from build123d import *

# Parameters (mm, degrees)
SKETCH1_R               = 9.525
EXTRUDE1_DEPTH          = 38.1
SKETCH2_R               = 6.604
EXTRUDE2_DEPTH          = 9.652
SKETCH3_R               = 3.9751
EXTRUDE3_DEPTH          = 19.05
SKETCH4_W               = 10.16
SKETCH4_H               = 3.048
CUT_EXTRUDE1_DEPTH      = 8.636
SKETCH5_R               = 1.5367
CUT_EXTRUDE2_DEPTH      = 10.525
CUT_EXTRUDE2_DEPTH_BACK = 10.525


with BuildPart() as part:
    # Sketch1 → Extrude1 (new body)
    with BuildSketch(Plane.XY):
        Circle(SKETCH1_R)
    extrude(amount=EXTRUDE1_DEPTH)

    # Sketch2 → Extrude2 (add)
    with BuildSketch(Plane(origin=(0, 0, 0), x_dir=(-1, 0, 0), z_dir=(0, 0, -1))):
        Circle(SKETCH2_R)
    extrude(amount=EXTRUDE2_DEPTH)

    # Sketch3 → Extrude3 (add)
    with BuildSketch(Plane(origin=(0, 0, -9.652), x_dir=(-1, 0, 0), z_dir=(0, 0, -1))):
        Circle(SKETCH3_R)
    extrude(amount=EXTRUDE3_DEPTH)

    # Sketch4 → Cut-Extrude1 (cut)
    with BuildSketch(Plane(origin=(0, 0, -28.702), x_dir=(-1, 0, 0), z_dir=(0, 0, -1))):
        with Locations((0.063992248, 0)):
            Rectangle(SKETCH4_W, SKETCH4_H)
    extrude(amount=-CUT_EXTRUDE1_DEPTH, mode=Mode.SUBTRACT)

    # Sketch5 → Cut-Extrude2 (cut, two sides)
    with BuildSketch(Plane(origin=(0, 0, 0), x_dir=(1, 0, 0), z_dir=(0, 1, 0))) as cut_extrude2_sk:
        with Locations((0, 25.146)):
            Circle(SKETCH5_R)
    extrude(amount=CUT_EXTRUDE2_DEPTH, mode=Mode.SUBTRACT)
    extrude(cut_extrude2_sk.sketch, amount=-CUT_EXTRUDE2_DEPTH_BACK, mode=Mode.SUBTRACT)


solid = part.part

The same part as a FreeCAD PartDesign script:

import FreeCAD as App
import Part
import Sketcher
from FreeCAD import Vector
Q = App.Units.Quantity

doc = App.newDocument("Part")
body = doc.addObject("PartDesign::Body", "Body")

# Sketch on XY plane
sketch1 = body.newObject("Sketcher::SketchObject", "Sketch")
sketch1.AttachmentSupport = (doc.getObject("XY_Plane"), [""])
sketch1.MapMode = "FlatFace"
sketch1.addGeometry(Part.Circle(Vector(0, 0, 0), Vector(0, 0, 1), 10), False)
sketch1.addConstraint([
    Sketcher.Constraint("Coincident", 0, 3, -1, 1),
    Sketcher.Constraint("Diameter", 0, Q("0.75 in")),
])
pad1 = body.newObject("PartDesign::Pad", "Pad")
pad1.Profile = sketch1
pad1.Length = Q("1.5 in")

# Sketch on XY plane
sketch2 = body.newObject("Sketcher::SketchObject", "Sketch001")
sketch2.AttachmentSupport = (doc.getObject("XY_Plane"), [""])
sketch2.MapMode = "FlatFace"
sketch2.addGeometry(Part.Circle(Vector(0, 0, 0), Vector(0, 0, 1), 7), False)
sketch2.addConstraint([
    Sketcher.Constraint("Coincident", 0, 3, -1, 1),
    Sketcher.Constraint("Diameter", 0, Q("0.52 in")),
])
pad2 = body.newObject("PartDesign::Pad", "Pad001")
pad2.Profile = sketch2
pad2.Length = Q("0.38 in")
pad2.Reversed = True

# Sketch on XY plane
sketch3 = body.newObject("Sketcher::SketchObject", "Sketch002")
sketch3.AttachmentSupport = (doc.getObject("XY_Plane"), [""])
sketch3.MapMode = "FlatFace"
sketch3.AttachmentOffset = App.Placement(Vector(0, 0, -0.38 * 25.4), App.Rotation())
sketch3.addGeometry(Part.Circle(Vector(0, 0, 0), Vector(0, 0, 1), 4), False)
sketch3.addConstraint([
    Sketcher.Constraint("Coincident", 0, 3, -1, 1),
    Sketcher.Constraint("Diameter", 0, Q("0.313 in")),
])
pad3 = body.newObject("PartDesign::Pad", "Pad002")
pad3.Profile = sketch3
pad3.Length = Q("0.75 in")
pad3.Reversed = True

# Sketch on XY plane
sketch4 = body.newObject("Sketcher::SketchObject", "Sketch003")
sketch4.AttachmentSupport = (doc.getObject("XY_Plane"), [""])
sketch4.MapMode = "FlatFace"
sketch4.AttachmentOffset = App.Placement(Vector(0, 0, -1.13 * 25.4), App.Rotation())
sketch4.addGeometry([
    Part.LineSegment(Vector(5, 1.5, 0), Vector(5, -1.5, 0)),
    Part.LineSegment(Vector(5, -1.5, 0), Vector(-5.1, -1.5, 0)),
    Part.LineSegment(Vector(-5.1, -1.5, 0), Vector(-5.1, 1.5, 0)),
    Part.LineSegment(Vector(-5.1, 1.5, 0), Vector(5, 1.5, 0)),
], False)
sketch4.addConstraint([
    Sketcher.Constraint("Coincident", 0, 2, 1, 1),
    Sketcher.Constraint("Coincident", 1, 2, 2, 1),
    Sketcher.Constraint("Coincident", 2, 2, 3, 1),
    Sketcher.Constraint("Coincident", 3, 2, 0, 1),
    Sketcher.Constraint("Vertical", 0),
    Sketcher.Constraint("Horizontal", 1),
    Sketcher.Constraint("Vertical", 2),
    Sketcher.Constraint("Horizontal", 3),
    Sketcher.Constraint("DistanceX", 1, 2, 1, 1, Q("0.4 in")),
    Sketcher.Constraint("DistanceY", 0, 2, 0, 1, Q("0.12 in")),
    Sketcher.Constraint("DistanceY", 0, 2, -1, 1, Q("0.06 in")),
    Sketcher.Constraint("DistanceX", -1, 1, 0, 2, Q("5.016008 mm")),
])
pocket1 = body.newObject("PartDesign::Pocket", "Pocket")
pocket1.Profile = sketch4
pocket1.Length = Q("0.34 in")
pocket1.Reversed = True

# Sketch on XZ plane
sketch5 = body.newObject("Sketcher::SketchObject", "Sketch004")
sketch5.AttachmentSupport = (doc.getObject("XZ_Plane"), [""])
sketch5.MapMode = "FlatFace"
sketch5.addGeometry(Part.Circle(Vector(0, -25.1, 0), Vector(0, 0, 1), 1.5), False)
sketch5.addConstraint([
    Sketcher.Constraint("PointOnObject", 0, 3, -2),
    Sketcher.Constraint("Diameter", 0, Q("0.121 in")),
    Sketcher.Constraint("DistanceY", 0, 3, -1, 1, Q("0.99 in")),
])
pocket2 = body.newObject("PartDesign::Pocket", "Pocket001")
pocket2.Profile = sketch5
pocket2.Type = "ThroughAll"
pocket2.Midplane = True

doc.recompute()
